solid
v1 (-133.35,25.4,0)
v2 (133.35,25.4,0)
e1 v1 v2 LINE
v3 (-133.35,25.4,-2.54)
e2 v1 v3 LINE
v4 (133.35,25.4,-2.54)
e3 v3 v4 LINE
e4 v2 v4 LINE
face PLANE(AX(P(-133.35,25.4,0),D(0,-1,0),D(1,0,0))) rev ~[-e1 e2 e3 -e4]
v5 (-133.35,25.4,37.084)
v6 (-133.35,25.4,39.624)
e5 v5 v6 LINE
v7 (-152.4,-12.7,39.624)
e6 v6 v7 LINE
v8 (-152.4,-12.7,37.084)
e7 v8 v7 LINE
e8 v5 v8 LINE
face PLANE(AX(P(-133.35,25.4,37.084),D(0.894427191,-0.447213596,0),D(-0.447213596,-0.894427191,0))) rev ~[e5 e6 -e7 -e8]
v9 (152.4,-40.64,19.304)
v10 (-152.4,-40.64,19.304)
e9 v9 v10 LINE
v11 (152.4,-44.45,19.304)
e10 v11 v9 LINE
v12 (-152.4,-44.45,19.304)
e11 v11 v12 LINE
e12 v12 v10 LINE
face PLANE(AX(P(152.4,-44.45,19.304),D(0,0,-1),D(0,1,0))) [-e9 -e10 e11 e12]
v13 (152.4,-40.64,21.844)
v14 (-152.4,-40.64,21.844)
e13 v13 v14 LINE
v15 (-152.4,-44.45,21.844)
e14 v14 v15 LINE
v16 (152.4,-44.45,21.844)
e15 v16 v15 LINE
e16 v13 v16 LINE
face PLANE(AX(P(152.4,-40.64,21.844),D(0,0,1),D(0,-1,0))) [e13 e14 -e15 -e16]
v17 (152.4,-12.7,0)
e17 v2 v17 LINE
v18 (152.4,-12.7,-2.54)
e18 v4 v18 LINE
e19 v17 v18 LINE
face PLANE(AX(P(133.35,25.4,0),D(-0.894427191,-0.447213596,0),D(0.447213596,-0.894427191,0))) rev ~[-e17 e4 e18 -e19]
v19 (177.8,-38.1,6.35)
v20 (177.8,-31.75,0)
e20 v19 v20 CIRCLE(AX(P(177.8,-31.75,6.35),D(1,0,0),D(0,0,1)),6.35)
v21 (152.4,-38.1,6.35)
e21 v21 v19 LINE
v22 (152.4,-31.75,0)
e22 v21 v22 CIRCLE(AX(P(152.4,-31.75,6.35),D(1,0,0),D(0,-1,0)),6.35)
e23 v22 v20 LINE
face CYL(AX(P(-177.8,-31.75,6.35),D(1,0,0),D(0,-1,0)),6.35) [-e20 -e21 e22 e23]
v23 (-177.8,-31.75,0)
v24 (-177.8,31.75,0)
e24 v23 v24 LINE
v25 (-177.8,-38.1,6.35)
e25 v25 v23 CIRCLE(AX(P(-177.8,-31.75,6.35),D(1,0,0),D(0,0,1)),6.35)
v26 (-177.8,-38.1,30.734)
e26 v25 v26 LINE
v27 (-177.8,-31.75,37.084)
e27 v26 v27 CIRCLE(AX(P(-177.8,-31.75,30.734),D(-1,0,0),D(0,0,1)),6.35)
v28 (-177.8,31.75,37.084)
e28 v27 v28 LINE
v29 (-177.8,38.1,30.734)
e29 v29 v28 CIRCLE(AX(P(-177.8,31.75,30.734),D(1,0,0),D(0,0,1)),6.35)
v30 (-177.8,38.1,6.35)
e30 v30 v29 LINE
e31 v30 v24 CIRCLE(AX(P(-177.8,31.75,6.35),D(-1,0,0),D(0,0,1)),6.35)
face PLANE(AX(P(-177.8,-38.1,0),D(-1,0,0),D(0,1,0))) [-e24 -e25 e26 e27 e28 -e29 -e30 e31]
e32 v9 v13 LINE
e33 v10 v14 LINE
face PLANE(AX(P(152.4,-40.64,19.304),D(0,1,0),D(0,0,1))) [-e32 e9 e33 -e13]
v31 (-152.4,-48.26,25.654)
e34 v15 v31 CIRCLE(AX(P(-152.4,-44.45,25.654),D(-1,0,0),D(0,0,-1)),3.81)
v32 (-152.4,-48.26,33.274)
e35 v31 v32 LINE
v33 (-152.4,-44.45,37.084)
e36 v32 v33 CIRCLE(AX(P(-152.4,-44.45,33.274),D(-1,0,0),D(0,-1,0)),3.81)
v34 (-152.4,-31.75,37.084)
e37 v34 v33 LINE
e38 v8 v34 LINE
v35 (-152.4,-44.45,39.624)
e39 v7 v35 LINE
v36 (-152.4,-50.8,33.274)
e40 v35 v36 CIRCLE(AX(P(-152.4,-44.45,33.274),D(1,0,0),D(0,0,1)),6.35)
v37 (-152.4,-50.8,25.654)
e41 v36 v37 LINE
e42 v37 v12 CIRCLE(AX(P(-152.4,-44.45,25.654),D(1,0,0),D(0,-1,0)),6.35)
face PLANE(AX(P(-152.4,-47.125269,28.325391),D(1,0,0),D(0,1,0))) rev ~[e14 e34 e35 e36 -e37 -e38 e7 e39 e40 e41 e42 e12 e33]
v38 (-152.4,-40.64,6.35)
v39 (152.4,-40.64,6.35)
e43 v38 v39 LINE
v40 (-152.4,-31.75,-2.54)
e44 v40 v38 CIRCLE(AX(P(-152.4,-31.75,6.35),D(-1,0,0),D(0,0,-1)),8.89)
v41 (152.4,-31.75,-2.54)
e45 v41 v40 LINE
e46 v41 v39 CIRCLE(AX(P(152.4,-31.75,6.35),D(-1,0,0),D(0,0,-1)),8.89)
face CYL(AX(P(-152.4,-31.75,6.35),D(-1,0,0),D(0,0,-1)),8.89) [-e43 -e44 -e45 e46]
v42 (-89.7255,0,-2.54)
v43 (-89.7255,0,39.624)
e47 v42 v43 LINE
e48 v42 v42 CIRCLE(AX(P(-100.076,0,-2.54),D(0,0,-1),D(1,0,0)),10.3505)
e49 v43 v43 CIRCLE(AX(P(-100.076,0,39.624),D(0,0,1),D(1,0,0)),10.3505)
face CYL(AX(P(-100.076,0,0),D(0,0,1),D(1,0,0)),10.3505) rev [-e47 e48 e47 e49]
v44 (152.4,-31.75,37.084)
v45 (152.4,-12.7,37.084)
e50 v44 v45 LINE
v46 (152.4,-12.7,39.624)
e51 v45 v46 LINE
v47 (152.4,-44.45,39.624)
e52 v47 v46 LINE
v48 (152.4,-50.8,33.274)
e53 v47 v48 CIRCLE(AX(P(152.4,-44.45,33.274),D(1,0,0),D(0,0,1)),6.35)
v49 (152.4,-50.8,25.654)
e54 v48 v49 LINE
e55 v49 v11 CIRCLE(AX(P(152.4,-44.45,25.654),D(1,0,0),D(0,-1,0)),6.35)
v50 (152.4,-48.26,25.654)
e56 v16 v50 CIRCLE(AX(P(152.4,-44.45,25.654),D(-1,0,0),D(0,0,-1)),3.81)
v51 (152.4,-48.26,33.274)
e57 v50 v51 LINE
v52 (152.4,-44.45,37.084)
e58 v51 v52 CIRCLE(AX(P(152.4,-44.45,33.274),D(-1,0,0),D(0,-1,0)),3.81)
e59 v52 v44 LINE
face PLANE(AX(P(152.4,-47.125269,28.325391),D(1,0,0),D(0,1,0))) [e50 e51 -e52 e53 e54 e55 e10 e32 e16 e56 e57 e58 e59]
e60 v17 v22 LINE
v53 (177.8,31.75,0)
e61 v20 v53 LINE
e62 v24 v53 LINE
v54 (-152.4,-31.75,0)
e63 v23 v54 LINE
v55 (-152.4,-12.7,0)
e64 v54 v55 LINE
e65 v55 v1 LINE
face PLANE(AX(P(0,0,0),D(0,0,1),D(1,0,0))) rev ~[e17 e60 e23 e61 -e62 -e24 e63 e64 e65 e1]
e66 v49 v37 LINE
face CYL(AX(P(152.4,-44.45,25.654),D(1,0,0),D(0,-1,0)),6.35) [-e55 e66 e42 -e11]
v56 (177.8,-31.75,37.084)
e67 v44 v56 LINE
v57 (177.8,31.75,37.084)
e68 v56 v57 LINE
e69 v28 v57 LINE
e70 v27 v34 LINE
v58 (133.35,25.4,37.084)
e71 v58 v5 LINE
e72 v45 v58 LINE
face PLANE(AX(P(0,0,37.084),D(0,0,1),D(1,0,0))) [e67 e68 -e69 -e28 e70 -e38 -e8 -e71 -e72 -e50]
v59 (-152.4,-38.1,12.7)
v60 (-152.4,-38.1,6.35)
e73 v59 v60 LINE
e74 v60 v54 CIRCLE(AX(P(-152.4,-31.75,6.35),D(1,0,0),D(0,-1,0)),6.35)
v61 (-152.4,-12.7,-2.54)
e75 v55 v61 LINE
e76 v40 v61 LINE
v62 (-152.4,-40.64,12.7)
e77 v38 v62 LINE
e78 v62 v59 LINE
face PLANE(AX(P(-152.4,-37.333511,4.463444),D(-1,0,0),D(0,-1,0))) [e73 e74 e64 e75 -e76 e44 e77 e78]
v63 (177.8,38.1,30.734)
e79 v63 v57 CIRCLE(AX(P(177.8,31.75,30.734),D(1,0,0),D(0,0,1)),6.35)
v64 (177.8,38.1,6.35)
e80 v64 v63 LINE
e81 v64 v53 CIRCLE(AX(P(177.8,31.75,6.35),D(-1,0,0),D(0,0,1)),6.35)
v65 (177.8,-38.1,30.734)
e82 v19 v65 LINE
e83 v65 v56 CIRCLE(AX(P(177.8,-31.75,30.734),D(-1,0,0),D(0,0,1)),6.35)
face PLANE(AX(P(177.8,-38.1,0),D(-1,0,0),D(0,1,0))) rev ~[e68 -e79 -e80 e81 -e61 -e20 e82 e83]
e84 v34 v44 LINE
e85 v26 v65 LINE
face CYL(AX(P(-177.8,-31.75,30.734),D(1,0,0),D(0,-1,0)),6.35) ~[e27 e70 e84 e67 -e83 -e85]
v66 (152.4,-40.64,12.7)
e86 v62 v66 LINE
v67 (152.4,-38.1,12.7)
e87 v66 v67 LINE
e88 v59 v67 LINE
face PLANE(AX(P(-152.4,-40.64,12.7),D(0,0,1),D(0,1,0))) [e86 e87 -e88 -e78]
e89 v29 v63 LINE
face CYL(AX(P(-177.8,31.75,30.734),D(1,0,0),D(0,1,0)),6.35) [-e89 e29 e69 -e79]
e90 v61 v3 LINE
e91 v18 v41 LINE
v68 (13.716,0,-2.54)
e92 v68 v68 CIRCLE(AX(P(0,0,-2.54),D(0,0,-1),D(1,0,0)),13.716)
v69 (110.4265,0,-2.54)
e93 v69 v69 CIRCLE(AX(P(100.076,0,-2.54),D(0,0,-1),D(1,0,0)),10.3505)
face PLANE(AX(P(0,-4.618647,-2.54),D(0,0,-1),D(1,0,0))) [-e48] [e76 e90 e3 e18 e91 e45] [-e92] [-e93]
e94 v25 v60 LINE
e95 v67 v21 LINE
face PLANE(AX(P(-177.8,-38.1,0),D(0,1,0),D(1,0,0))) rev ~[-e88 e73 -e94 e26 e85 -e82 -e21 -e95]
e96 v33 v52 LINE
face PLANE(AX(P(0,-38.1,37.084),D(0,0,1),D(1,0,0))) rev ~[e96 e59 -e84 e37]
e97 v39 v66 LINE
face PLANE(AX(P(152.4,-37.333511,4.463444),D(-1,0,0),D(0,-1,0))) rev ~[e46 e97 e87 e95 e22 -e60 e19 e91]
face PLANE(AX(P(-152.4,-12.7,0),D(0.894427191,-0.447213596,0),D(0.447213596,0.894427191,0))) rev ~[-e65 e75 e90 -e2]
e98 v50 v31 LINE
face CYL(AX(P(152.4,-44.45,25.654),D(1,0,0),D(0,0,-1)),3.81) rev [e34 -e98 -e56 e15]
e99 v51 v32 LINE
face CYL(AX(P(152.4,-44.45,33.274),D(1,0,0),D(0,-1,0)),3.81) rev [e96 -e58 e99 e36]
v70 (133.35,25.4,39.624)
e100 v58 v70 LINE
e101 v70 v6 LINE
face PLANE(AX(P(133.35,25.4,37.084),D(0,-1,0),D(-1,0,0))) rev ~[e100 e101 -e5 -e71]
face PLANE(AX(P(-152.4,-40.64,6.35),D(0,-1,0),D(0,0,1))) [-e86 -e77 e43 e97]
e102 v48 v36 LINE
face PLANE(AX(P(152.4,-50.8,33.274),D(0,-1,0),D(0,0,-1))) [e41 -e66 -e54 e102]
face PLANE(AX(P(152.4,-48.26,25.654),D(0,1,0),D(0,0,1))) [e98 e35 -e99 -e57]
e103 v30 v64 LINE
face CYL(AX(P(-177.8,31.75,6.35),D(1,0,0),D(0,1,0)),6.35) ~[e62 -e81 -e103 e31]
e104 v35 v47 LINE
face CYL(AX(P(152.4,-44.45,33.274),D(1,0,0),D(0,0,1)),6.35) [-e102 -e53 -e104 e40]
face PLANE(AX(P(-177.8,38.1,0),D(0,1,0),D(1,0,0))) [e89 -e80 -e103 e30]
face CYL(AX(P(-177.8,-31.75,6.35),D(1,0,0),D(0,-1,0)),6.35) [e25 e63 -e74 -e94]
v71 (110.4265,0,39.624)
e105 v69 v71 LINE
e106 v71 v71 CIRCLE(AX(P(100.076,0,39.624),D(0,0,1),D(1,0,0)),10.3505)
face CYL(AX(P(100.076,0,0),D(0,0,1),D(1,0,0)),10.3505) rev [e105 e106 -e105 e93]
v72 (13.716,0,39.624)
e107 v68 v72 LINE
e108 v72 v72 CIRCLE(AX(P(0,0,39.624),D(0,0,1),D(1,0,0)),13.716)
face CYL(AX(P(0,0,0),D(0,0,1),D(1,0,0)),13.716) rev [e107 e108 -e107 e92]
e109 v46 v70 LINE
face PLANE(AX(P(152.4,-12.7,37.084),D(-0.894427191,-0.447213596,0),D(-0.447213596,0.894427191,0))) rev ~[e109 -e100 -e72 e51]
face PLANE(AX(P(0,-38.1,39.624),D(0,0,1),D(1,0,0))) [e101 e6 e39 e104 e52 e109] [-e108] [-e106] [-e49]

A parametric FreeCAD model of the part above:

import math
import FreeCAD as App
import Part
import Sketcher
Q = App.Units.Quantity


def edges_at(feature, points):
    """Names of the edges that pass closest to the given points."""
    edges = feature.Shape.Edges
    near = lambda p: min(range(len(edges)), key=lambda i: edges[i].distToShape(Part.Vertex(*p))[0])
    return sorted({f"Edge{near(p) + 1}" for p in points})

doc = App.newDocument("Part")
body = doc.addObject("PartDesign::Body", "Body")

sketch1 = body.newObject("Sketcher::SketchObject", "Sketch")
sketch1.AttachmentSupport = (doc.getObject("XY_Plane"), [""])
sketch1.MapMode = "FlatFace"
sketch1.addGeometry([
    Part.LineSegment(App.Vector(-178, 38, 0), App.Vector(-178, -38, 0)),
    Part.LineSegment(App.Vector(-178, -38, 0), App.Vector(178, -38, 0)),
    Part.LineSegment(App.Vector(178, -38, 0), App.Vector(178, 38, 0)),
    Part.LineSegment(App.Vector(178, 38, 0), App.Vector(-178, 38, 0)),
    Part.Circle(App.Vector(-100, 0, 0), App.Vector(0, 0, 1), 10),
    Part.Circle(App.Vector(0, 0, 0), App.Vector(0, 0, 1), 14),
    Part.Circle(App.Vector(100, 0, 0), App.Vector(0, 0, 1), 10),
], False)
sketch1.addConstraint([
    Sketcher.Constraint("Coincident", 0, 2, 1, 1),
    Sketcher.Constraint("Coincident", 1, 2, 2, 1),
    Sketcher.Constraint("Coincident", 2, 2, 3, 1),
    Sketcher.Constraint("Coincident", 3, 2, 0, 1),
    Sketcher.Constraint("Vertical", 0),
    Sketcher.Constraint("Horizontal", 1),
    Sketcher.Constraint("Vertical", 2),
    Sketcher.Constraint("Horizontal", 3),
    Sketcher.Constraint("Coincident", 5, 3, -1, 1),
    Sketcher.Constraint("Equal", 4, 6),
    Sketcher.Constraint("Symmetric", 4, 3, 6, 3, -1, 1),
    Sketcher.Constraint("Symmetric", 0, 2, 2, 2, -1, 1),
    Sketcher.Constraint("PointOnObject", 4, 3, -1),
    Sketcher.Constraint("Diameter", 5, Q("1.08 in")),
    Sketcher.Constraint("DistanceX", 1, 1, 1, 2, Q("14 in")),
    Sketcher.Constraint("DistanceY", 0, 2, 0, 1, Q("3 in")),
    Sketcher.Constraint("Diameter", 4, Q("0.815 in")),
    Sketcher.Constraint("DistanceX", 4, 3, -1, 1, Q("3.94 in")),
])
pad1 = body.newObject("PartDesign::Pad", "Pad")
pad1.Profile = sketch1
pad1.Length = Q("1.46 in")
doc.recompute()

fillet = body.newObject("PartDesign::Fillet", "Fillet")
fillet.Base = (pad1, edges_at(pad1, [
    (0, -38.1, 37.084),
    (0, -38.1, 0),
    (0, 38.1, 37.084),
    (0, 38.1, 0),
]))
fillet.Radius = Q("0.25 in")

sketch2 = body.newObject("Sketcher::SketchObject", "Sketch001")
sketch2.AttachmentSupport = (doc.getObject("XY_Plane"), [""])
sketch2.MapMode = "FlatFace"
sketch2.AttachmentOffset = App.Placement(App.Vector(0, 0, 1.46 * 25.4), App.Rotation())
sketch2.addGeometry([
    Part.LineSegment(App.Vector(-152, -44, 0), App.Vector(152, -44, 0)),
    Part.LineSegment(App.Vector(152, -44, 0), App.Vector(152, -13, 0)),
    Part.LineSegment(App.Vector(152, -13, 0), App.Vector(133, 25, 0)),
    Part.LineSegment(App.Vector(133, 25, 0), App.Vector(-133, 25, 0)),
    Part.LineSegment(App.Vector(-133, 25, 0), App.Vector(-152, -13, 0)),
    Part.LineSegment(App.Vector(-152, -13, 0), App.Vector(-152, -44, 0)),
    Part.Circle(App.Vector(-100, 0, 0), App.Vector(0, 0, 1), 10),
    Part.Circle(App.Vector(0, 0, 0), App.Vector(0, 0, 1), 14),
    Part.Circle(App.Vector(100, 0, 0), App.Vector(0, 0, 1), 10),
], False)
sketch2.addConstraint([
    Sketcher.Constraint("Coincident", 0, 2, 1, 1),
    Sketcher.Constraint("Coincident", 1, 2, 2, 1),
    Sketcher.Constraint("Coincident", 2, 2, 3, 1),
    Sketcher.Constraint("Coincident", 3, 2, 4, 1),
    Sketcher.Constraint("Coincident", 4, 2, 5, 1),
    Sketcher.Constraint("Coincident", 5, 2, 0, 1),
    Sketcher.Constraint("Horizontal", 0),
    Sketcher.Constraint("Vertical", 1),
    Sketcher.Constraint("Horizontal", 3),
    Sketcher.Constraint("Vertical", 5),
    Sketcher.Constraint("Coincident", 7, 3, -1, 1),
    Sketcher.Constraint("Equal", 6, 8),
    Sketcher.Constraint("Symmetric", 6, 3, 8, 3, -1, 1),
    Sketcher.Constraint("Symmetric", 1, 2, 4, 2, -2),
    Sketcher.Constraint("PointOnObject", 6, 3, -1),
    Sketcher.Constraint("Equal", 2, 4),
    Sketcher.Constraint("Diameter", 7, Q("1.08 in")),
    Sketcher.Constraint("DistanceX", 0, 1, 0, 2, Q("12 in")),
    Sketcher.Constraint("Diameter", 6, Q("0.815 in")),
    Sketcher.Constraint("DistanceX", 3, 2, 3, 1, Q("10.5 in")),
    Sketcher.Constraint("DistanceY", -1, 1, 2, 2, Q("1 in")),
    Sketcher.Constraint("DistanceY", 1, 1, 1, 2, Q("1.25 in")),
    Sketcher.Constraint("DistanceY", 1, 2, -1, 1, Q("0.5 in")),
    Sketcher.Constraint("DistanceX", 6, 3, -1, 1, Q("3.94 in")),
])
pad2 = body.newObject("PartDesign::Pad", "Pad001")
pad2.Profile = sketch2
pad2.Length = Q("0.1 in")

sketch3 = body.newObject("Sketcher::SketchObject", "Sketch002")
sketch3.AttachmentSupport = (doc.getObject("XY_Plane"), [""])
sketch3.MapMode = "FlatFace"
sketch3.addGeometry([
    Part.LineSegment(App.Vector(-152, -13, 0), App.Vector(-133, 25, 0)),
    Part.LineSegment(App.Vector(-133, 25, 0), App.Vector(133, 25, 0)),
    Part.LineSegment(App.Vector(133, 25, 0), App.Vector(152, -13, 0)),
    Part.LineSegment(App.Vector(152, -13, 0), App.Vector(152, -32, 0)),
    Part.LineSegment(App.Vector(152, -32, 0), App.Vector(-152, -32, 0)),
    Part.LineSegment(App.Vector(-152, -32, 0), App.Vector(-152, -13, 0)),
    Part.Circle(App.Vector(-100, 0, 0), App.Vector(0, 0, 1), 10),
    Part.Circle(App.Vector(0, 0, 0), App.Vector(0, 0, 1), 14),
    Part.Circle(App.Vector(100, 0, 0), App.Vector(0, 0, 1), 10),
], False)
sketch3.addConstraint([
    Sketcher.Constraint("Coincident", 0, 2, 1, 1),
    Sketcher.Constraint("Coincident", 1, 2, 2, 1),
    Sketcher.Constraint("Coincident", 2, 2, 3, 1),
    Sketcher.Constraint("Coincident", 3, 2, 4, 1),
    Sketcher.Constraint("Coincident", 4, 2, 5, 1),
    Sketcher.Constraint("Coincident", 5, 2, 0, 1),
    Sketcher.Constraint("Horizontal", 1),
    Sketcher.Constraint("Vertical", 3),
    Sketcher.Constraint("Horizontal", 4),
    Sketcher.Constraint("Vertical", 5),
    Sketcher.Constraint("Coincident", 7, 3, -1, 1),
    Sketcher.Constraint("Equal", 6, 8),
    Sketcher.Constraint("Symmetric", 6, 3, 8, 3, -1, 1),
    Sketcher.Constraint("Symmetric", 2, 2, 5, 2, -2),
    Sketcher.Constraint("PointOnObject", 6, 3, -1),
    Sketcher.Constraint("Equal", 0, 2),
    Sketcher.Constraint("Diameter", 7, Q("1.08 in")),
    Sketcher.Constraint("DistanceX", 4, 2, 4, 1, Q("12 in")),
    Sketcher.Constraint("Diameter", 6, Q("0.815 in")),
    Sketcher.Constraint("DistanceX", 1, 1, 1, 2, Q("10.5 in")),
    Sketcher.Constraint("DistanceY", -1, 1, 0, 2, Q("1 in")),
    Sketcher.Constraint("DistanceY", 3, 2, 3, 1, Q("0.75 in")),
    Sketcher.Constraint("DistanceY", 2, 2, -1, 1, Q("0.5 in")),
    Sketcher.Constraint("DistanceX", 6, 3, -1, 1, Q("3.94 in")),
])
pad3 = body.newObject("PartDesign::Pad", "Pad002")
pad3.Profile = sketch3
pad3.Length = Q("0.1 in")
pad3.Reversed = True

sketch4 = body.newObject("Sketcher::SketchObject", "Sketch003")
sketch4.AttachmentSupport = (doc.getObject("YZ_Plane"), [""])
sketch4.MapMode = "FlatFace"
sketch4.AttachmentOffset = App.Placement(App.Vector(0, 0, 6 * 25.4), App.Rotation())
sketch4.addGeometry([
    Part.ArcOfCircle(Part.Circle(App.Vector(-44.5, 33.3, 0), App.Vector(0, 0, 1), 3.8), math.radians(90), math.radians(180)),
    Part.LineSegment(App.Vector(-44.5, 37.1, 0), App.Vector(-44.5, 39.6, 0)),
    Part.ArcOfCircle(Part.Circle(App.Vector(-44.5, 33.3, 0), App.Vector(0, 0, 1), 6.3), math.radians(90), math.radians(180)),
    Part.LineSegment(App.Vector(-50.8, 33.3, 0), App.Vector(-50.8, 25.7, 0)),
    Part.ArcOfCircle(Part.Circle(App.Vector(-44.5, 25.7, 0), App.Vector(0, 0, 1), 6.3), math.radians(180), math.radians(270)),
    Part.LineSegment(App.Vector(-44.5, 19.3, 0), App.Vector(-40.6, 19.3, 0)),
    Part.LineSegment(App.Vector(-40.6, 19.3, 0), App.Vector(-40.6, 21.8, 0)),
    Part.LineSegment(App.Vector(-40.6, 21.8, 0), App.Vector(-44.5, 21.8, 0)),
    Part.ArcOfCircle(Part.Circle(App.Vector(-44.5, 25.7, 0), App.Vector(0, 0, 1), 3.8), math.radians(180), math.radians(270)),
    Part.LineSegment(App.Vector(-48.3, 25.7, 0), App.Vector(-48.3, 33.3, 0)),
], False)
sketch4.addConstraint([
    Sketcher.Constraint("Coincident", 0, 1, 1, 1),
    Sketcher.Constraint("Coincident", 1, 2, 2, 1),
    Sketcher.Constraint("Tangent", 2, 2, 3, 1),
    Sketcher.Constraint("Tangent", 3, 2, 4, 1),
    Sketcher.Constraint("Tangent", 4, 2, 5, 1),
    Sketcher.Constraint("Coincident", 5, 2, 6, 1),
    Sketcher.Constraint("Coincident", 6, 2, 7, 1),
    Sketcher.Constraint("Tangent", 7, 2, 8, 2),
    Sketcher.Constraint("Tangent", 8, 1, 9, 1),
    Sketcher.Constraint("Tangent", 9, 2, 0, 2),
    Sketcher.Constraint("Vertical", 1),
    Sketcher.Constraint("Vertical", 3),
    Sketcher.Constraint("Horizontal", 5),
    Sketcher.Constraint("Vertical", 6),
    Sketcher.Constraint("Horizontal", 7),
    Sketcher.Constraint("Vertical", 9),
    Sketcher.Constraint("Coincident", 2, 3, 0, 3),
    Sketcher.Constraint("Coincident", 8, 3, 4, 3),
    Sketcher.Constraint("Equal", 2, 4),
    Sketcher.Constraint("Vertical", 8, 3, 0, 1),
    Sketcher.Constraint("Radius", 0, Q("0.15 in")),
    Sketcher.Constraint("Radius", 2, Q("0.25 in")),
    Sketcher.Constraint("DistanceY", 3, 2, 3, 1, Q("0.3 in")),
    Sketcher.Constraint("DistanceX", 2, 2, -1, 1, Q("2 in")),
    Sketcher.Constraint("DistanceX", 5, 1, 5, 2, Q("0.15 in")),
    Sketcher.Constraint("DistanceY", -1, 1, 0, 3, Q("1.31 in")),
])
pad4 = body.newObject("PartDesign::Pad", "Pad003")
pad4.Profile = sketch4
pad4.Length = Q("12 in")
pad4.Reversed = True

sketch5 = body.newObject("Sketcher::SketchObject", "Sketch004")
sketch5.AttachmentSupport = (doc.getObject("YZ_Plane"), [""])
sketch5.MapMode = "FlatFace"
sketch5.AttachmentOffset = App.Placement(App.Vector(0, 0, -6 * 25.4), App.Rotation())
sketch5.addGeometry([
    Part.ArcOfCircle(Part.Circle(App.Vector(-31.8, 6.3, 0), App.Vector(0, 0, 1), 8.9), math.radians(180), math.radians(270)),
    Part.LineSegment(App.Vector(-40.6, 6.3, 0), App.Vector(-40.6, 12.7, 0)),
    Part.LineSegment(App.Vector(-40.6, 12.7, 0), App.Vector(-38.1, 12.7, 0)),
    Part.LineSegment(App.Vector(-38.1, 12.7, 0), App.Vector(-38.1, 6.3, 0)),
    Part.ArcOfCircle(Part.Circle(App.Vector(-31.8, 6.3, 0), App.Vector(0, 0, 1), 6.3), math.radians(180), math.radians(270)),
    Part.LineSegment(App.Vector(-31.8, 0, 0), App.Vector(-31.8, -2.5, 0)),
], False)
sketch5.addConstraint([
    Sketcher.Constraint("Tangent", 0, 1, 1, 1),
    Sketcher.Constraint("Coincident", 1, 2, 2, 1),
    Sketcher.Constraint("Coincident", 2, 2, 3, 1),
    Sketcher.Constraint("Tangent", 3, 2, 4, 1),
    Sketcher.Constraint("Coincident", 4, 2, 5, 1),
    Sketcher.Constraint("Coincident", 5, 2, 0, 2),
    Sketcher.Constraint("Vertical", 1),
    Sketcher.Constraint("Horizontal", 2),
    Sketcher.Constraint("Vertical", 3),
    Sketcher.Constraint("Vertical", 5),
    Sketcher.Constraint("Coincident", 4, 3, 0, 3),
    Sketcher.Constraint("PointOnObject", 4, 2, -1),
    Sketcher.Constraint("Vertical", 0, 3, 4, 2),
    Sketcher.Constraint("Radius", 0, Q("0.35 in")),
    Sketcher.Constraint("Radius", 4, Q("0.25 in")),
    Sketcher.Constraint("DistanceY", 1, 1, 1, 2, Q("0.25 in")),
    Sketcher.Constraint("DistanceX", 0, 1, -1, 1, Q("1.6 in")),
])
pad5 = body.newObject("PartDesign::Pad", "Pad004")
pad5.Profile = sketch5
pad5.Length = Q("12 in")

doc.recompute()
